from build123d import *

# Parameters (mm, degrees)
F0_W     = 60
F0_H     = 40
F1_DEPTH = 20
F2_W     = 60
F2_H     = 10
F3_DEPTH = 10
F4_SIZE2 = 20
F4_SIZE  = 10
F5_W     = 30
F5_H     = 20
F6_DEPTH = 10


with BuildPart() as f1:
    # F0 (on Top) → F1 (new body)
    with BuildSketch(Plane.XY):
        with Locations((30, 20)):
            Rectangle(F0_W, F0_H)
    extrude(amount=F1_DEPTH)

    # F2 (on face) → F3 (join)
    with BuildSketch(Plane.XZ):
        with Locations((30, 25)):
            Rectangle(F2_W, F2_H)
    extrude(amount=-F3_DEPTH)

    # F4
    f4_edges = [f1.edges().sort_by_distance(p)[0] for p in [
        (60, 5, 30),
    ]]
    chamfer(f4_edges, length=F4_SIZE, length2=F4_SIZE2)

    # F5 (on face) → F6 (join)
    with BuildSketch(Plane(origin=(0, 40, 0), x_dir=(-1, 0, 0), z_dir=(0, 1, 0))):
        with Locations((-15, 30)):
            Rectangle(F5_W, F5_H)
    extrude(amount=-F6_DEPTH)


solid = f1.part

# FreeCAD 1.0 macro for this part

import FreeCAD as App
import Part
import Sketcher

V = App.Vector
Q = App.Units.Quantity


def edges_at(feature, points):
    """Names of the edges that pass closest to the given points."""
    edges = feature.Shape.Edges
    near = lambda p: min(range(len(edges)), key=lambda i: edges[i].distToShape(Part.Vertex(*p))[0])
    return sorted({f"Edge{near(p) + 1}" for p in points})


def add_polygon(sketch, points):
    """Adds a closed chain of lines whose ends are joined by coincident constraints."""
    first, n = sketch.GeometryCount, len(points)
    for a, b in zip(points, points[1:] + points[:1]):
        sketch.addGeometry(Part.LineSegment(App.Vector(*a, 0), App.Vector(*b, 0)), False)
    for i in range(n):
        sketch.addConstraint(Sketcher.Constraint("Coincident", first + i, 2, first + (i + 1) % n, 1))

doc = App.newDocument("Part")
body = doc.addObject("PartDesign::Body", "Body")

# Sketch on XY plane
sketch1 = body.newObject("Sketcher::SketchObject", "Sketch")
sketch1.AttachmentSupport = (doc.getObject("XY_Plane"), [""])
sketch1.MapMode = "FlatFace"
add_polygon(sketch1, [(0, 40), (0, 0), (60, 0), (60, 40)])  # lines 0-3
sketch1.addConstraint([
    Sketcher.Constraint("Vertical", 0),
    Sketcher.Constraint("Horizontal", 1),
    Sketcher.Constraint("Vertical", 2),
    Sketcher.Constraint("Horizontal", 3),
    Sketcher.Constraint("Coincident", 0, 2, -1, 1),
    Sketcher.Constraint("DistanceX", 1, 1, 1, 2, Q("60 mm")),
    Sketcher.Constraint("DistanceY", 0, 2, 0, 1, Q("40 mm")),
])
pad1 = body.newObject("PartDesign::Pad", "Pad")
pad1.Profile = sketch1
pad1.Length = 20

# Sketch on XZ plane
sketch2 = body.newObject("Sketcher::SketchObject", "Sketch001")
sketch2.AttachmentSupport = (doc.getObject("XZ_Plane"), [""])
sketch2.MapMode = "FlatFace"
add_polygon(sketch2, [(0, 30), (0, 20), (60, 20), (60, 30)])  # lines 0-3
sketch2.addConstraint([
    Sketcher.Constraint("Vertical", 0),
    Sketcher.Constraint("Horizontal", 1),
    Sketcher.Constraint("Vertical", 2),
    Sketcher.Constraint("Horizontal", 3),
    Sketcher.Constraint("PointOnObject", 0, 2, -2),
    Sketcher.Constraint("DistanceX", 1, 1, 1, 2, Q("60 mm")),
    Sketcher.Constraint("DistanceY", 0, 2, 0, 1, Q("10 mm")),
    Sketcher.Constraint("DistanceY", -1, 1, 0, 2, Q("20 mm")),
])
pad2 = body.newObject("PartDesign::Pad", "Pad001")
pad2.Profile = sketch2
pad2.Length = 10
pad2.Reversed = True
doc.recompute()

chamfer = body.newObject("PartDesign::Chamfer", "Chamfer")
chamfer.Base = (pad2, edges_at(pad2, [(60, 5, 30)]))
chamfer.ChamferType = "Two distances"
chamfer.Size = 10
chamfer.Size2 = 20
chamfer.FlipDirection = True

# Sketch on XZ plane
sketch3 = body.newObject("Sketcher::SketchObject", "Sketch002")
sketch3.AttachmentSupport = (doc.getObject("XZ_Plane"), [""])
sketch3.MapMode = "FlatFace"
sketch3.AttachmentOffset = App.Placement(V(0, 0, -40), App.Rotation())
add_polygon(sketch3, [(30, 40), (30, 20), (0, 20), (0, 40)])  # lines 0-3
sketch3.addConstraint([
    Sketcher.Constraint("Vertical", 0),
    Sketcher.Constraint("Horizontal", 1),
    Sketcher.Constraint("Vertical", 2),
    Sketcher.Constraint("Horizontal", 3),
    Sketcher.Constraint("PointOnObject", 1, 2, -2),
    Sketcher.Constraint("DistanceX", 1, 2, 1, 1, Q("30 mm")),
    Sketcher.Constraint("DistanceY", 0, 2, 0, 1, Q("20 mm")),
    Sketcher.Constraint("DistanceY", -1, 1, 0, 2, Q("20 mm")),
])
pad3 = body.newObject("PartDesign::Pad", "Pad002")
pad3.Profile = sketch3
pad3.Length = 10

doc.recompute()
